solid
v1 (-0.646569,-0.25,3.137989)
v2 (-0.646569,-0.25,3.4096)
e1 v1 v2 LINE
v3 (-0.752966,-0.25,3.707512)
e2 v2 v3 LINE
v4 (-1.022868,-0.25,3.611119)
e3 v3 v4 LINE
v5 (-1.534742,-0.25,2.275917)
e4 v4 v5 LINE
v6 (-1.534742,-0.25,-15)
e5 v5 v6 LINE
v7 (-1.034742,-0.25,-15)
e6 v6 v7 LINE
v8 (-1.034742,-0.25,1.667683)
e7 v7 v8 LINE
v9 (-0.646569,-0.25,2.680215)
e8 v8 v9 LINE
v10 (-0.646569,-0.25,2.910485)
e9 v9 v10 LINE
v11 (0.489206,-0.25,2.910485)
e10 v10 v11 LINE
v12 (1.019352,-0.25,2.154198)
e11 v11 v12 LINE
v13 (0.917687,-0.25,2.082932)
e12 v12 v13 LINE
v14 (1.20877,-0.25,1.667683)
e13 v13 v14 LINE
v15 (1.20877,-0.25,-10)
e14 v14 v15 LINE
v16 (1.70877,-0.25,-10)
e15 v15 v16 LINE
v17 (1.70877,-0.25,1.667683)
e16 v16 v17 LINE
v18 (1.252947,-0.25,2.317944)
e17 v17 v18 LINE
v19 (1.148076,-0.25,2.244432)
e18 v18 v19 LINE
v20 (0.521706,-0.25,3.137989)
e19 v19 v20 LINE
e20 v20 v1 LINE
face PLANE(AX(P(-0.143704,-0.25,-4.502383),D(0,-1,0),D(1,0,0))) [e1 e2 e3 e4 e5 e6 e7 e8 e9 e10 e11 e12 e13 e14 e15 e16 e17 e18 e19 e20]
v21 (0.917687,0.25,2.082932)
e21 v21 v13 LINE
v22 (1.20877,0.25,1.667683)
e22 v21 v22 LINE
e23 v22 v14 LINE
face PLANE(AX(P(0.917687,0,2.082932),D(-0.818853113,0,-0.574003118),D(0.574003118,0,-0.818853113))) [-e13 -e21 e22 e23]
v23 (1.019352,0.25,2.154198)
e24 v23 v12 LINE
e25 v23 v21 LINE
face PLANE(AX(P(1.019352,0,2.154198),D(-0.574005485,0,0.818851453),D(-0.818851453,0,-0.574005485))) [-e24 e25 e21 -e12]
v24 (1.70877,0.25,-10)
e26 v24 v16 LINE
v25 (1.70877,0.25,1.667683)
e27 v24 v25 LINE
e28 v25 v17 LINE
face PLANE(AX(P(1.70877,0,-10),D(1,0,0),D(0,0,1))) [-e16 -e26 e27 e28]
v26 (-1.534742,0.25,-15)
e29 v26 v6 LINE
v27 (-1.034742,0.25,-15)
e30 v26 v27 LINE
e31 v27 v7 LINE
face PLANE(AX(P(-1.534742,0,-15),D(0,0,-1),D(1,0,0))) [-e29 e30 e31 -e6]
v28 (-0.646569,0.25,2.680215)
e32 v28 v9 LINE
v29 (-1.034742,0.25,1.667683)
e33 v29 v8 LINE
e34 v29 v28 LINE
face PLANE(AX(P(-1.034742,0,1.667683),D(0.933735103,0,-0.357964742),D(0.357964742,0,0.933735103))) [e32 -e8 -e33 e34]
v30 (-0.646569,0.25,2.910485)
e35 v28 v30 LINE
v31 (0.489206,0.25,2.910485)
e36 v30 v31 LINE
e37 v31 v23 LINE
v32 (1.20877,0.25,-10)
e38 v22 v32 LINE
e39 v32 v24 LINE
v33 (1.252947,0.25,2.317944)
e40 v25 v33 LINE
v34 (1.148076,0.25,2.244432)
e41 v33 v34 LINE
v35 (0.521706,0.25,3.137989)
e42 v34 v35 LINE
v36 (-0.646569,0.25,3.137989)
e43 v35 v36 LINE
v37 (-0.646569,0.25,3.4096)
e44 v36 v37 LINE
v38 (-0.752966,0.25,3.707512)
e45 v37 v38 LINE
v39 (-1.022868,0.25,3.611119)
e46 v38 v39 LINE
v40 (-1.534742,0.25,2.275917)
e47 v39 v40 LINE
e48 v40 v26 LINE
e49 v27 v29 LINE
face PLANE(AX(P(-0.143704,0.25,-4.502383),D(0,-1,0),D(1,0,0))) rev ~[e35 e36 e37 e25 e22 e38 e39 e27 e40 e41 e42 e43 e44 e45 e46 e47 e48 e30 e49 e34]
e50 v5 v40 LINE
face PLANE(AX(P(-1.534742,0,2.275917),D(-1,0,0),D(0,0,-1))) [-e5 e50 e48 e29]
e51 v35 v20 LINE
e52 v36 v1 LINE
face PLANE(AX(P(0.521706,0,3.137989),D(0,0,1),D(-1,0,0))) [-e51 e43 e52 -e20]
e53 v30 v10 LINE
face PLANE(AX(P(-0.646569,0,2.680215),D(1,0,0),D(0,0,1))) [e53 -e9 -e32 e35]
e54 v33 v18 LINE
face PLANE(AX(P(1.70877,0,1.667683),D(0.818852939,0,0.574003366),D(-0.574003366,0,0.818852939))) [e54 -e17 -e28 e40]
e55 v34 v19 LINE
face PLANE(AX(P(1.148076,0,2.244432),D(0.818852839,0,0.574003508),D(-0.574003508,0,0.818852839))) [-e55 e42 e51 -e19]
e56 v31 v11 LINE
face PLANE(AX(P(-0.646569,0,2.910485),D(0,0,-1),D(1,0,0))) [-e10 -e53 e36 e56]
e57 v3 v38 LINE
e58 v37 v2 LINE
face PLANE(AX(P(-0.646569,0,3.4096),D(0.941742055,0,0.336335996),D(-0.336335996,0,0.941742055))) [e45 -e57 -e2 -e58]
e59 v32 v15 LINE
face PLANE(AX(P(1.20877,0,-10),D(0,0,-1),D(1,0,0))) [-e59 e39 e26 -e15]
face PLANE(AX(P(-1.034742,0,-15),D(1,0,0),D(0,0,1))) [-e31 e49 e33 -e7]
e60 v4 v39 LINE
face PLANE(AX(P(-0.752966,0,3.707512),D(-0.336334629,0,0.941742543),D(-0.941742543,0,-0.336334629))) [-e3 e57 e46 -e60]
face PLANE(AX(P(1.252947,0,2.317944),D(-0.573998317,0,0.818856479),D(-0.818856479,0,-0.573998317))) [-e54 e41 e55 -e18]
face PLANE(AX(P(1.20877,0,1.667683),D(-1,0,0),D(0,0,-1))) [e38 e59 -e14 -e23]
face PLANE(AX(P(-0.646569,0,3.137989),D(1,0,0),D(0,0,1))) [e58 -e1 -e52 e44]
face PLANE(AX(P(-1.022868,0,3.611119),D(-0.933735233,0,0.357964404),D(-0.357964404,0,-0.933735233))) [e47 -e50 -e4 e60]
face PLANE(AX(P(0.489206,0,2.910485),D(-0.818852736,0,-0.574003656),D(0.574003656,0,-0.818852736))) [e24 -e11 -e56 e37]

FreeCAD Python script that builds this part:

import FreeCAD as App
import Part
import Sketcher
Q = App.Units.Quantity


def add_polygon(sketch, points):
    """Adds a closed chain of lines whose ends are joined by coincident constraints."""
    first, n = sketch.GeometryCount, len(points)
    for a, b in zip(points, points[1:] + points[:1]):
        sketch.addGeometry(Part.LineSegment(App.Vector(*a, 0), App.Vector(*b, 0)), False)
    for i in range(n):
        sketch.addConstraint(Sketcher.Constraint("Coincident", first + i, 2, first + (i + 1) % n, 1))

doc = App.newDocument("Part")
params = doc.addObject("Spreadsheet::Sheet", "Params")
for row, (alias, value) in enumerate([
    ("sketch1_width", "0.5 mm"),
    ("pad1_length", "0.5 mm"),
], start=1):
    params.set(f"A{row}", alias)
    params.set(f"B{row}", "=" + value)
    params.setAlias(f"B{row}", alias)

body = doc.addObject("PartDesign::Body", "Body")

# Sketch on XZ plane
sketch1 = body.newObject("Sketcher::SketchObject", "Sketch")
sketch1.AttachmentSupport = (doc.getObject("XZ_Plane"), [""])
sketch1.MapMode = "FlatFace"
add_polygon(sketch1, [(-1.534742, 2.275917), (-1.534742, -15), (-1.034742, -15), (-1.034742, 1.667683), (-0.646569, 2.680215), (-0.646569, 2.910485), (0.489206, 2.910485), (1.019352, 2.154198), (0.917687, 2.082932), (1.20877, 1.667683), (1.20877, -10), (1.70877, -10), (1.70877, 1.667683), (1.252947, 2.317944), (1.148076, 2.244432), (0.521706, 3.137989), (-0.646569, 3.137989), (-0.646569, 3.4096), (-0.752966, 3.707512), (-1.022868, 3.611119)])  # lines 0-19
sketch1.addConstraint([
    Sketcher.Constraint("Vertical", 0),
    Sketcher.Constraint("Horizontal", 1),
    Sketcher.Constraint("Vertical", 2),
    Sketcher.Constraint("Vertical", 4),
    Sketcher.Constraint("Horizontal", 5),
    Sketcher.Constraint("Vertical", 9),
    Sketcher.Constraint("Horizontal", 10),
    Sketcher.Constraint("Vertical", 11),
    Sketcher.Constraint("Horizontal", 15),
    Sketcher.Constraint("Vertical", 16),
    Sketcher.Constraint("Parallel", 6, 8),
    Sketcher.Constraint("Parallel", 8, 12),
    Sketcher.Constraint("Parallel", 12, 14),
    Sketcher.Constraint("Perpendicular", 17, 18),
    Sketcher.Constraint("Parallel", 3, 19),
    Sketcher.Constraint("Horizontal", 2, 2, 8, 2),
    Sketcher.Constraint("Horizontal", 8, 2, 11, 2),
    Sketcher.Constraint("Vertical", 4, 2, 15, 2),
    Sketcher.Constraint("Equal", 1, 10),
    Sketcher.Constraint("DistanceX", 1, 1, 1, 2, Q("0.5 mm")),
    Sketcher.Constraint("DistanceY", 0, 2, -1, 1, Q("15 mm")),
    Sketcher.Constraint("DistanceY", 9, 2, -1, 1, Q("10 mm")),
    Sketcher.Constraint("Angle", 7, Q("-144.969985 deg")),
    Sketcher.Constraint("Distance", 18, Q("0.286598 mm")),
    Sketcher.Constraint("DistanceY", 4, 1, 4, 2, Q("0.23027 mm")),
    Sketcher.Constraint("DistanceY", 16, 1, 16, 2, Q("0.271611 mm")),
    Sketcher.Constraint("DistanceY", -1, 1, 6, 2, Q("2.154198 mm")),
    Sketcher.Constraint("DistanceY", -1, 1, 16, 2, Q("3.4096 mm")),
    Sketcher.Constraint("DistanceY", 7, 2, 13, 2, Q("0.1615 mm")),
    Sketcher.Constraint("DistanceX", 5, 2, 14, 2, Q("0.0325 mm")),
    Sketcher.Constraint("DistanceX", 18, 2, 16, 2, Q("0.376299 mm")),
    Sketcher.Constraint("DistanceY", 19, 2, 18, 2, Q("1.335202 mm")),
    Sketcher.Constraint("Distance", 3, Q("1.084389 mm")),
    Sketcher.Constraint("Distance", 8, Q("0.50711 mm")),
    Sketcher.Constraint("Distance", 13, Q("0.12807 mm")),
    Sketcher.Constraint("Distance", 14, Q("1.09123 mm")),
    Sketcher.Constraint("Distance", 17, Q("0.316341 mm")),
    Sketcher.Constraint("DistanceX", 5, 1, 5, 2, Q("1.135775 mm")),
    Sketcher.Constraint("DistanceX", 3, 2, -1, 1, Q("0.646569 mm")),
    Sketcher.Constraint("DistanceX", 7, 2, 12, 2, Q("0.33526 mm")),
])
sketch1.setExpression("Constraints[39]", "Params.sketch1_width")
pad1 = body.newObject("PartDesign::Pad", "Pad")
pad1.Profile = sketch1
pad1.setExpression("Length", "Params.pad1_length")
pad1.Midplane = True

doc.recompute()
